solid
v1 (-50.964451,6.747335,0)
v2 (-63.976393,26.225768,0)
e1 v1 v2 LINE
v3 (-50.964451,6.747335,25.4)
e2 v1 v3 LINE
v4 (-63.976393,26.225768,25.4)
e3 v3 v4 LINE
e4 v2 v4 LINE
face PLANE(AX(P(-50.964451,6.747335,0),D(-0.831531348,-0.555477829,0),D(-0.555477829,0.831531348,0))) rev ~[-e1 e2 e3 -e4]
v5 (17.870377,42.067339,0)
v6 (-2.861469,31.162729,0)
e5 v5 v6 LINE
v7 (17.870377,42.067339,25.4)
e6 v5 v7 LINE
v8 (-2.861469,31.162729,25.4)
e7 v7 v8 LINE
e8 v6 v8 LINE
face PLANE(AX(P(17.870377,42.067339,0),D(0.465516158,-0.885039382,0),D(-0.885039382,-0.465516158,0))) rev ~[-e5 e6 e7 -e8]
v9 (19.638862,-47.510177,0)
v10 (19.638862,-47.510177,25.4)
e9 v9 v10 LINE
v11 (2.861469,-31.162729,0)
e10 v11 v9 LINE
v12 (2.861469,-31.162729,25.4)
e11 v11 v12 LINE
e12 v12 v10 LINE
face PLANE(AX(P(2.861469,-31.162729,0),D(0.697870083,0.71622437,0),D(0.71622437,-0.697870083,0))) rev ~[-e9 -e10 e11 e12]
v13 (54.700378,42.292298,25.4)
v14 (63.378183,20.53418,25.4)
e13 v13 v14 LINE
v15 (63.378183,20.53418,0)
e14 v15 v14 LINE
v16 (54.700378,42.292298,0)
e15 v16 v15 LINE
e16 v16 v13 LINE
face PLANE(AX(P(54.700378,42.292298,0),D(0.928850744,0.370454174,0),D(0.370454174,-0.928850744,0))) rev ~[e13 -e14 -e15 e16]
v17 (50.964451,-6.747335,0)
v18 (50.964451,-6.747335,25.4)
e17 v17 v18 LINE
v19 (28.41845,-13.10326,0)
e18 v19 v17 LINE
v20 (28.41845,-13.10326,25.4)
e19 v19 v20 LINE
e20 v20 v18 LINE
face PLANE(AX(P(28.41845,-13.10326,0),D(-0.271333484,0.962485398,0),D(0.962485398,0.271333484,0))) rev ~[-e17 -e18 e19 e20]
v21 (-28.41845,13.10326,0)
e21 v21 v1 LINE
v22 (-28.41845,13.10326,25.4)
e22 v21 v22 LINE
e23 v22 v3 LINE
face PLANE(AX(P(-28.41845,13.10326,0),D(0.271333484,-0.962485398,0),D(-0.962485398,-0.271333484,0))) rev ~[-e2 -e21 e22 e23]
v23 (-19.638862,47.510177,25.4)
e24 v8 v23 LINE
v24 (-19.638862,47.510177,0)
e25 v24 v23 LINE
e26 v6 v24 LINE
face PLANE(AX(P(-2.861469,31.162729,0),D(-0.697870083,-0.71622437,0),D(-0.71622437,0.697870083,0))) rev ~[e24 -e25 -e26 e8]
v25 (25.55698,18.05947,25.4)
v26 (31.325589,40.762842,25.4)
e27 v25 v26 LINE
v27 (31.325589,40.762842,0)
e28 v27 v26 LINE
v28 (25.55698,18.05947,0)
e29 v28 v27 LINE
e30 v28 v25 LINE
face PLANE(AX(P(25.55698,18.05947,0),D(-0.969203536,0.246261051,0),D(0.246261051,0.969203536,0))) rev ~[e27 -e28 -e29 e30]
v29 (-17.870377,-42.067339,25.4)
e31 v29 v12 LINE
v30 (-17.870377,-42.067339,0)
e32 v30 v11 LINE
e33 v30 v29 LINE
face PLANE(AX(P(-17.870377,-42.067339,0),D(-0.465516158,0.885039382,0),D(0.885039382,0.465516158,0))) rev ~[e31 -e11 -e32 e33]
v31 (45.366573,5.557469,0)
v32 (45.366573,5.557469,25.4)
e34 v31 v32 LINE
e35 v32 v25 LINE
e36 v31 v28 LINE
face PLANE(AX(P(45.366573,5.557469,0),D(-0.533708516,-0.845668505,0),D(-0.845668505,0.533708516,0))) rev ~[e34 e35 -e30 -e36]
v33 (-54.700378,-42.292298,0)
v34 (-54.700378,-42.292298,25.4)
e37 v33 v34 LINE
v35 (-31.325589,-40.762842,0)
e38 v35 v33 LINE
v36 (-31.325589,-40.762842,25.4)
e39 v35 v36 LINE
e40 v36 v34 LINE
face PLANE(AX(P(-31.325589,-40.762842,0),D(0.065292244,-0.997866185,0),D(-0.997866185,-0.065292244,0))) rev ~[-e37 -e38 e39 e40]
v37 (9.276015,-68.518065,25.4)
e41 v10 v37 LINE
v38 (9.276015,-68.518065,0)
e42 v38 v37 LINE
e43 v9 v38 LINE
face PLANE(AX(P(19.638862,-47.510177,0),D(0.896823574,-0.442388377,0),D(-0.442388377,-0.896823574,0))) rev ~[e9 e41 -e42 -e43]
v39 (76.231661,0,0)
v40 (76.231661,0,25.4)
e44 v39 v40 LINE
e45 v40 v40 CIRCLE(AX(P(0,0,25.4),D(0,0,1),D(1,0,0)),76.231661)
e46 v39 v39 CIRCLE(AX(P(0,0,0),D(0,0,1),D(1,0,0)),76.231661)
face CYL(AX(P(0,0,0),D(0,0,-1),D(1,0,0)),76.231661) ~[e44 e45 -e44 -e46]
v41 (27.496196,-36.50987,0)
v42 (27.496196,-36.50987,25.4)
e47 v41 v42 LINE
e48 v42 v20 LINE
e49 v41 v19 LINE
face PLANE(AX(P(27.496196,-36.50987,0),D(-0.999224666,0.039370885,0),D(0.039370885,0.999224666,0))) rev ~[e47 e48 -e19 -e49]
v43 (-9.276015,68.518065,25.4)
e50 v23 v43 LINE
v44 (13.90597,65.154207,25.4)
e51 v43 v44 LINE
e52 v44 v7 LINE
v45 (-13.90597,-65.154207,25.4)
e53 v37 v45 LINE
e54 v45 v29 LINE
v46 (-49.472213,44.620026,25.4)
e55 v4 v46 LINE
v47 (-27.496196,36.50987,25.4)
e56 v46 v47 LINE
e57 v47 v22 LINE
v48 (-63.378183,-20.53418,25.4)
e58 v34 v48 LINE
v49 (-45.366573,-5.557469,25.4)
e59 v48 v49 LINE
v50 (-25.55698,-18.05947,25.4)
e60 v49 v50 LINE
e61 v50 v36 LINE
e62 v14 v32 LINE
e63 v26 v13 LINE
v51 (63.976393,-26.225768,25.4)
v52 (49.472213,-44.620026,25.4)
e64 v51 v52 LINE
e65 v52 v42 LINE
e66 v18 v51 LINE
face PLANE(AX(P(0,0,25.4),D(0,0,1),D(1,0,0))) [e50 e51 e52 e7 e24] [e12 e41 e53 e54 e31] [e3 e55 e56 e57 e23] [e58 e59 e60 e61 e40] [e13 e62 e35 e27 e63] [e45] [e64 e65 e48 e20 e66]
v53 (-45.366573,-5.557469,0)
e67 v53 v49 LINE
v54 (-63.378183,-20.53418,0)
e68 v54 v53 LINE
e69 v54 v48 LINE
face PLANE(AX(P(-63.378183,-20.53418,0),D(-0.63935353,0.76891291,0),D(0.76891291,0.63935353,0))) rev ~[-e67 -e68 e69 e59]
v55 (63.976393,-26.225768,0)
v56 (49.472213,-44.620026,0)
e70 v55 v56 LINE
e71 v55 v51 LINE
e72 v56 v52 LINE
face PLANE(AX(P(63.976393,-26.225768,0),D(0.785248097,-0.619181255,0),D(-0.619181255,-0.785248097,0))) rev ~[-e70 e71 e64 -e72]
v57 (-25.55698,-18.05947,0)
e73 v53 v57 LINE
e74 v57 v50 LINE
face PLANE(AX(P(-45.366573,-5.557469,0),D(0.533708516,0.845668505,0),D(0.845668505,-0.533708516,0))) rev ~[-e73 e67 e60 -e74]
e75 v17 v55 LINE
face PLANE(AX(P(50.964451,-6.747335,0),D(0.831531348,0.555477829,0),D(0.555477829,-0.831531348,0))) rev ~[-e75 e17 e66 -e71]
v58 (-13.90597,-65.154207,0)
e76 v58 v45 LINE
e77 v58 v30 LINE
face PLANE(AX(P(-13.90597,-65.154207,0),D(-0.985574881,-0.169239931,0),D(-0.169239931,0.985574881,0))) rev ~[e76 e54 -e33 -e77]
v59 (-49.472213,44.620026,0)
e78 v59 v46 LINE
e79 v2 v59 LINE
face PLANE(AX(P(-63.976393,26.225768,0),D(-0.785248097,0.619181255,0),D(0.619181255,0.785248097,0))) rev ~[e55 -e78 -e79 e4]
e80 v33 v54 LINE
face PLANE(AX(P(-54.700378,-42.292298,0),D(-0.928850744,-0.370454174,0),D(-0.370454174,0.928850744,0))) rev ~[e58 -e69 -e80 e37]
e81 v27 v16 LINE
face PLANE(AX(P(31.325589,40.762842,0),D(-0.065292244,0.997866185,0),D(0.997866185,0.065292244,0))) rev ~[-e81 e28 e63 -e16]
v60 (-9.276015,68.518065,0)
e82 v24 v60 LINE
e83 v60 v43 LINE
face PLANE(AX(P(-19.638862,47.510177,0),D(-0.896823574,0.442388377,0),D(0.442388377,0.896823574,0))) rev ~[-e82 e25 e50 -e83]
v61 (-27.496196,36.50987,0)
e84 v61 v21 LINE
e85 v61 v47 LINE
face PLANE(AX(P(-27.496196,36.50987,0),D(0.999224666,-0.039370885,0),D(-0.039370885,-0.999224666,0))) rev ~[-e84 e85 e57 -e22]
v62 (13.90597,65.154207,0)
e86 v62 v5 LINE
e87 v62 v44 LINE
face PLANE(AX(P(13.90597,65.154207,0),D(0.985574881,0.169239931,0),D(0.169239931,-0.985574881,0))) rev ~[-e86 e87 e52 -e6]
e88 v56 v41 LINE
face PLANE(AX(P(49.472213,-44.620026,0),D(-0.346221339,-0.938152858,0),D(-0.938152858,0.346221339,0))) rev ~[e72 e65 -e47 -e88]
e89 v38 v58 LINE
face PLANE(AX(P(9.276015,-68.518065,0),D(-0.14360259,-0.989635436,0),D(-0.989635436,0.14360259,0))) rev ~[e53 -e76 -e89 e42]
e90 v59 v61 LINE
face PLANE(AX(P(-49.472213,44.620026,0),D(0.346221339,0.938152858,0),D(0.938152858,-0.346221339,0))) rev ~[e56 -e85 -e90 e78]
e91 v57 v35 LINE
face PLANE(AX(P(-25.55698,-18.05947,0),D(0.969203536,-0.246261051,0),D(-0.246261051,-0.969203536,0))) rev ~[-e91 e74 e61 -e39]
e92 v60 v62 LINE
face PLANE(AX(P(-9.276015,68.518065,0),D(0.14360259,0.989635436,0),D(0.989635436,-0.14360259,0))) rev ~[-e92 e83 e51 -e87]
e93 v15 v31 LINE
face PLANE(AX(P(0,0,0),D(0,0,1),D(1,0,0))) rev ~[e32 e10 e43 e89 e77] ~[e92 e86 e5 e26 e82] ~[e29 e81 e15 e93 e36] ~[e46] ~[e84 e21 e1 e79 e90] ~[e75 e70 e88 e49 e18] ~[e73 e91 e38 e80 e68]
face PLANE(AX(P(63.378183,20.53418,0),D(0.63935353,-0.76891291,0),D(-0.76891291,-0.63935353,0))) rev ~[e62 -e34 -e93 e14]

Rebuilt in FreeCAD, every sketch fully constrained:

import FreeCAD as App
import Part
import Sketcher
Q = App.Units.Quantity


def add_polygon(sketch, points):
    """Adds a closed chain of lines whose ends are joined by coincident constraints."""
    first, n = sketch.GeometryCount, len(points)
    for a, b in zip(points, points[1:] + points[:1]):
        sketch.addGeometry(Part.LineSegment(App.Vector(*a, 0), App.Vector(*b, 0)), False)
    for i in range(n):
        sketch.addConstraint(Sketcher.Constraint("Coincident", first + i, 2, first + (i + 1) % n, 1))

doc = App.newDocument("Part")
body = doc.addObject("PartDesign::Body", "Body")

# Sketch on XY plane
sketch1 = body.newObject("Sketcher::SketchObject", "Sketch")
sketch1.AttachmentSupport = (doc.getObject("XY_Plane"), [""])
sketch1.MapMode = "FlatFace"
sketch1.addGeometry(Part.Circle(App.Vector(0, 0, 0), App.Vector(0, 0, 1), 76.231661), False)  # 0
add_polygon(sketch1, [(-31.325589, -40.762842), (-54.700378, -42.292298), (-63.378183, -20.53418), (-45.366573, -5.557469), (-25.55698, -18.05947)])  # lines 1-5
add_polygon(sketch1, [(19.638862, -47.510177), (9.276015, -68.518065), (-13.90597, -65.154207), (-17.870377, -42.067339), (2.861469, -31.162729)])  # lines 6-10
add_polygon(sketch1, [(50.964451, -6.747335), (63.976393, -26.225768), (49.472213, -44.620026), (27.496196, -36.50987), (28.41845, -13.10326)])  # lines 11-15
add_polygon(sketch1, [(-50.964451, 6.747335), (-63.976393, 26.225768), (-49.472213, 44.620026), (-27.496196, 36.50987), (-28.41845, 13.10326)])  # lines 16-20
add_polygon(sketch1, [(17.870377, 42.067339), (-2.861469, 31.162729), (-19.638862, 47.510177), (-9.276015, 68.518065), (13.90597, 65.154207)])  # lines 21-25
add_polygon(sketch1, [(31.325589, 40.762842), (54.700378, 42.292298), (63.378183, 20.53418), (45.366573, 5.557469), (25.55698, 18.05947)])  # lines 26-30
sketch1.addConstraint([
    Sketcher.Constraint("Coincident", 0, 3, -1, 1),
    Sketcher.Constraint("DistanceX", 1, 2, 8, 2, Q("1.45 in")),
    Sketcher.Constraint("DistanceX", 25, 2, 26, 2, Q("1.45 in")),
    Sketcher.Constraint("Diameter", 0, 152.463322),
    Sketcher.Constraint("DistanceY", 1, 2, -1, 1, 42.292298),
    Sketcher.Constraint("DistanceY", -1, 1, 26, 2, 42.292298),
    Sketcher.Constraint("DistanceY", 4, 2, 3, 2, 12.502001),
    Sketcher.Constraint("DistanceX", 1, 2, 4, 2, 29.143398),
    Sketcher.Constraint("DistanceX", 6, 2, 12, 2, 40.196198),
    Sketcher.Constraint("DistanceX", 14, 2, 15, 2, 22.546001),
    Sketcher.Constraint("DistanceX", 20, 2, 19, 2, 22.546001),
    Sketcher.Constraint("DistanceX", 17, 2, 23, 2, 40.196198),
    Sketcher.Constraint("DistanceY", 28, 2, 29, 2, 12.502001),
    Sketcher.Constraint("DistanceY", 2, 2, -1, 1, 20.53418),
    Sketcher.Constraint("DistanceY", 3, 2, -1, 1, 5.557469),
    Sketcher.Constraint("DistanceX", 4, 2, -1, 1, 25.55698),
    Sketcher.Constraint("DistanceX", 5, 2, -1, 1, 31.325589),
    Sketcher.Constraint("DistanceX", 7, 2, -1, 1, 13.90597),
    Sketcher.Constraint("DistanceY", 8, 2, -1, 1, 42.067339),
    Sketcher.Constraint("DistanceX", -1, 1, 9, 2, 2.861469),
    Sketcher.Constraint("DistanceY", 9, 2, -1, 1, 31.162729),
    Sketcher.Constraint("DistanceX", -1, 1, 10, 2, 19.638862),
    Sketcher.Constraint("DistanceY", 13, 2, -1, 1, 36.50987),
    Sketcher.Constraint("DistanceX", -1, 1, 14, 2, 28.41845),
    Sketcher.Constraint("DistanceY", 14, 2, -1, 1, 13.10326),
    Sketcher.Constraint("DistanceY", -1, 1, 18, 2, 36.50987),
    Sketcher.Constraint("DistanceX", 19, 2, -1, 1, 28.41845),
    Sketcher.Constraint("DistanceY", -1, 1, 19, 2, 13.10326),
    Sketcher.Constraint("DistanceX", 21, 2, -1, 1, 2.861469),
    Sketcher.Constraint("DistanceY", -1, 1, 21, 2, 31.162729),
    Sketcher.Constraint("DistanceX", 22, 2, -1, 1, 19.638862),
    Sketcher.Constraint("DistanceX", -1, 1, 24, 2, 13.90597),
    Sketcher.Constraint("DistanceY", -1, 1, 25, 2, 42.067339),
    Sketcher.Constraint("DistanceY", -1, 1, 27, 2, 20.53418),
    Sketcher.Constraint("DistanceY", -1, 1, 28, 2, 5.557469),
    Sketcher.Constraint("DistanceX", -1, 1, 29, 2, 25.55698),
    Sketcher.Constraint("DistanceX", -1, 1, 30, 2, 31.325589),
    Sketcher.Constraint("DistanceX", 2, 2, 3, 2, 18.01161),
    Sketcher.Constraint("DistanceY", 5, 2, 4, 2, 22.703372),
    Sketcher.Constraint("DistanceX", 3, 2, 6, 2, 54.642588),
    Sketcher.Constraint("DistanceY", 6, 2, 7, 2, 3.363858),
    Sketcher.Constraint("DistanceY", 7, 2, 1, 2, 22.861909),
    Sketcher.Constraint("DistanceX", 8, 2, 6, 2, 27.146392),
    Sketcher.Constraint("DistanceY", 6, 2, 10, 2, 21.007888),
    Sketcher.Constraint("DistanceX", 10, 2, 11, 2, 44.337531),
    Sketcher.Constraint("DistanceY", 10, 2, 11, 2, 21.284409),
    Sketcher.Constraint("DistanceY", 12, 2, 11, 2, 18.394258),
    Sketcher.Constraint("DistanceX", 6, 2, 13, 2, 18.220181),
    Sketcher.Constraint("DistanceY", 12, 2, 15, 2, 37.872691),
    Sketcher.Constraint("DistanceX", 16, 2, 3, 2, 18.60982),
    Sketcher.Constraint("DistanceX", 16, 2, 17, 2, 14.50418),
    Sketcher.Constraint("DistanceY", 16, 2, 17, 2, 18.394258),
    Sketcher.Constraint("DistanceY", 21, 2, 22, 2, 16.347448),
    Sketcher.Constraint("DistanceY", 17, 2, 22, 2, 2.890151),
    Sketcher.Constraint("DistanceY", 22, 2, 23, 2, 21.007888),
    Sketcher.Constraint("DistanceX", 18, 2, 23, 2, 18.220181),
    Sketcher.Constraint("DistanceY", 24, 2, 23, 2, 3.363858),
    Sketcher.Constraint("DistanceX", 22, 2, 25, 2, 37.509239),
    Sketcher.Constraint("DistanceX", 27, 2, 11, 2, 0.59821),
    Sketcher.Constraint("DistanceX", 28, 2, 27, 2, 18.01161),
    Sketcher.Constraint("DistanceY", 29, 2, 30, 2, 22.703372),
    Sketcher.Constraint("Distance", 16, 23.424773),
])
pad1 = body.newObject("PartDesign::Pad", "Pad")
pad1.Profile = sketch1
pad1.Length = Q("1 in")

doc.recompute()
